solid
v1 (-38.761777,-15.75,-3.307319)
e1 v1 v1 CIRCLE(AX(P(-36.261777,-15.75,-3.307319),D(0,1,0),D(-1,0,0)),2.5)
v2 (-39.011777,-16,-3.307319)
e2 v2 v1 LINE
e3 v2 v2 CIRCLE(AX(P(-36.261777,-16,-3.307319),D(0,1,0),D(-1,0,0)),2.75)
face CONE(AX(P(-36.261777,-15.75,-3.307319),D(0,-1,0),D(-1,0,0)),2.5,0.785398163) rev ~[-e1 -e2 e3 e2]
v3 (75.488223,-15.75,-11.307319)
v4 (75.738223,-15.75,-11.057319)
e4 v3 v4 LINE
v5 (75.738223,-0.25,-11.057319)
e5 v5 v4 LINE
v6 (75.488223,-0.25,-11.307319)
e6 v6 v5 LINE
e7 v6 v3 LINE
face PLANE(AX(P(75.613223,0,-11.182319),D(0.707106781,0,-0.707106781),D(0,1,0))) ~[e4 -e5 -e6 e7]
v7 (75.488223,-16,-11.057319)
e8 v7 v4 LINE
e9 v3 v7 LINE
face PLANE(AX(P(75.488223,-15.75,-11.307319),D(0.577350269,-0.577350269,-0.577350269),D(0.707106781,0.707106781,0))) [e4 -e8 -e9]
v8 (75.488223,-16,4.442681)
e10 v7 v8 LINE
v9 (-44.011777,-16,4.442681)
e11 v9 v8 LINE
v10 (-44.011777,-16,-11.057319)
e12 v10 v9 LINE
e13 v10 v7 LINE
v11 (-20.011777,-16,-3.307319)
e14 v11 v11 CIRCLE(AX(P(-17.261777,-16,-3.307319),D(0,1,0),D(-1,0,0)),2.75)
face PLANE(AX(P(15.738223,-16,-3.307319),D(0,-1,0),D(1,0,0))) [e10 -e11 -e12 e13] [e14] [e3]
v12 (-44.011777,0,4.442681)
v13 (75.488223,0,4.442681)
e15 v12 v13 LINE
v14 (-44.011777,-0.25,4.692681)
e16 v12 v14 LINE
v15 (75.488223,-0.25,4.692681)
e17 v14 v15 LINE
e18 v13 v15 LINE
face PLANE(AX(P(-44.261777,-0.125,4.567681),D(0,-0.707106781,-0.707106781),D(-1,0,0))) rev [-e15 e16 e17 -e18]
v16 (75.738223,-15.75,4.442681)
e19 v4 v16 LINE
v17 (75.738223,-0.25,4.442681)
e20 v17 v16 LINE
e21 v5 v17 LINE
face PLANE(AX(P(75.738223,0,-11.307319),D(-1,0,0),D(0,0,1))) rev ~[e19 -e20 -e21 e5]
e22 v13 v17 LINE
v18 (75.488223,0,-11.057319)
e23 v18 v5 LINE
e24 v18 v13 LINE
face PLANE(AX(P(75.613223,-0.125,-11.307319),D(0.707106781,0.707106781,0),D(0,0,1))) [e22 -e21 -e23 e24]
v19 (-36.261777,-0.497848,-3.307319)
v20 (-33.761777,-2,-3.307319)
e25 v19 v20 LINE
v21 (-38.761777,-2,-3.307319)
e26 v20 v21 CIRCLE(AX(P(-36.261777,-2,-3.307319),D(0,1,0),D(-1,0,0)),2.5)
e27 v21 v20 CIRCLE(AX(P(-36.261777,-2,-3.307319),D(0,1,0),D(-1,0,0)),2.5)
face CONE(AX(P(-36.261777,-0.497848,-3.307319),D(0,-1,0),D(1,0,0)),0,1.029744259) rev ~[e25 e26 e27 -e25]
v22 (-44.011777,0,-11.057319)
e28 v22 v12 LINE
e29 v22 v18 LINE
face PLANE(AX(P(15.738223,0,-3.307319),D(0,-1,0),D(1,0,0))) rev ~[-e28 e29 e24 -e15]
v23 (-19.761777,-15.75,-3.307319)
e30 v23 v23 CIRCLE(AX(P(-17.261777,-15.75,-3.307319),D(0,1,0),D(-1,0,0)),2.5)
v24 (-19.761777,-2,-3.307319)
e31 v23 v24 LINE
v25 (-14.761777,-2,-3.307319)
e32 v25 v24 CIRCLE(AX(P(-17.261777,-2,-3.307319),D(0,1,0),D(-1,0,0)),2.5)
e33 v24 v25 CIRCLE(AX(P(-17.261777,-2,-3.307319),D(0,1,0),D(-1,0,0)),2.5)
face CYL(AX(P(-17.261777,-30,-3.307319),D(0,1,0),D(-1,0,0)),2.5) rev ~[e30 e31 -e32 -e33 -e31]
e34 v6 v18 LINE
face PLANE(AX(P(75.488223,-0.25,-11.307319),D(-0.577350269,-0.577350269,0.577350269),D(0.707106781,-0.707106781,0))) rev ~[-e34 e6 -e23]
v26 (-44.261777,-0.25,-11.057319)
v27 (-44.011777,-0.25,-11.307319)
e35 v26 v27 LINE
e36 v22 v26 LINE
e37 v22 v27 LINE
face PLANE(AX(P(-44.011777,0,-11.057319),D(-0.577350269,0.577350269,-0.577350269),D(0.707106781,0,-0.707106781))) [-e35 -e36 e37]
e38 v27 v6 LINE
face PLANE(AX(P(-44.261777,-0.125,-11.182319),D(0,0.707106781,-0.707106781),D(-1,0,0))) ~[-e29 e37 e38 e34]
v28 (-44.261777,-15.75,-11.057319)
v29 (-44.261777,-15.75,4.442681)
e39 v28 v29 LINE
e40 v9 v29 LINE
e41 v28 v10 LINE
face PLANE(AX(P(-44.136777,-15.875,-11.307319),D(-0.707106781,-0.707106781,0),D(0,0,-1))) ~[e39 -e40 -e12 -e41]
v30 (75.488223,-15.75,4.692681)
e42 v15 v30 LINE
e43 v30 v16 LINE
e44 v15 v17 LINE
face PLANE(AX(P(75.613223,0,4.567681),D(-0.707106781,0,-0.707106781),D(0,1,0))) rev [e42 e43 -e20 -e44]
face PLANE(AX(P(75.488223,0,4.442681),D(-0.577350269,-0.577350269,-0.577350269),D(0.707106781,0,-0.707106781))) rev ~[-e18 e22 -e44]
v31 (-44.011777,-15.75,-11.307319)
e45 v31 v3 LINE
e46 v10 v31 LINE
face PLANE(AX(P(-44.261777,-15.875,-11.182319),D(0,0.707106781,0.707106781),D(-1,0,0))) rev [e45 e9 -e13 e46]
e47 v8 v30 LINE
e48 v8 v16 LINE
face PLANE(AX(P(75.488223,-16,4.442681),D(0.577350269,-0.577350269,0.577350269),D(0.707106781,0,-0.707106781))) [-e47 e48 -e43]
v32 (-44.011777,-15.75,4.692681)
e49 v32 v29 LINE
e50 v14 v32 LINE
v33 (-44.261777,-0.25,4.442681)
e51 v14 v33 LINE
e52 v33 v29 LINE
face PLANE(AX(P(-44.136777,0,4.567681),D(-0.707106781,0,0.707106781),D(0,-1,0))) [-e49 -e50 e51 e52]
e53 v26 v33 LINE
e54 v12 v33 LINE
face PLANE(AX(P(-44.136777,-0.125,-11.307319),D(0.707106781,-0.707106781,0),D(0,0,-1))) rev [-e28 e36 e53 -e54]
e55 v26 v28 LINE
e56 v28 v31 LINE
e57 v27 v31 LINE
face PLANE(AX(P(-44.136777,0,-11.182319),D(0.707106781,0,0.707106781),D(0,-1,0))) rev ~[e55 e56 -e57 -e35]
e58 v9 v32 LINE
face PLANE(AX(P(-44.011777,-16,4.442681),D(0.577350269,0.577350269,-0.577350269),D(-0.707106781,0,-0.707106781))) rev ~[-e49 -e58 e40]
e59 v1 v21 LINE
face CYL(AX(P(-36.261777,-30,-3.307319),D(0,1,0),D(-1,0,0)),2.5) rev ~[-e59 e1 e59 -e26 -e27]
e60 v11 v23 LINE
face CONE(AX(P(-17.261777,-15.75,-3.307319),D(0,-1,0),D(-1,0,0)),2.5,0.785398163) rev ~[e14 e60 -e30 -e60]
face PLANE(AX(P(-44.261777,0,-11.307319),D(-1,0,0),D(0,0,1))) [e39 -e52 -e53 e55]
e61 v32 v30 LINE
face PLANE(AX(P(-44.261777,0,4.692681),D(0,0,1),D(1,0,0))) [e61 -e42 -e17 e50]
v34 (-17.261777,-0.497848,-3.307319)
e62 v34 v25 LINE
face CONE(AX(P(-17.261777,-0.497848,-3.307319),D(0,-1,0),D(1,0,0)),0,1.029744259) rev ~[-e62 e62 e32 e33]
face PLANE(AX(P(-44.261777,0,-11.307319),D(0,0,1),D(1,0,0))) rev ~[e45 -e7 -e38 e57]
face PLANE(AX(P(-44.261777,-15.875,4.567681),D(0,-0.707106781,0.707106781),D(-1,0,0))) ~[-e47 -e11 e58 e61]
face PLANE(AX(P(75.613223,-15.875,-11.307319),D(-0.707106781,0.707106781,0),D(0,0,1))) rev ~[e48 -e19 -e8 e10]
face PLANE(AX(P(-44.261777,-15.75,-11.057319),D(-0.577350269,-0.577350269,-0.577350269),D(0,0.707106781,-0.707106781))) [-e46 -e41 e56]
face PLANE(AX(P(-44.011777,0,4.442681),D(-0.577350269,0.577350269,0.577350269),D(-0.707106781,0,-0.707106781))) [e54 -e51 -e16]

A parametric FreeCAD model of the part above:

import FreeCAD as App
import Part
import Sketcher
Q = App.Units.Quantity


def edges_at(feature, points):
    """Names of the edges that pass closest to the given points."""
    edges = feature.Shape.Edges
    near = lambda p: min(range(len(edges)), key=lambda i: edges[i].distToShape(Part.Vertex(*p))[0])
    return sorted({f"Edge{near(p) + 1}" for p in points})


def add_polygon(sketch, points):
    """Adds a closed chain of lines whose ends are joined by coincident constraints."""
    first, n = sketch.GeometryCount, len(points)
    for a, b in zip(points, points[1:] + points[:1]):
        sketch.addGeometry(Part.LineSegment(App.Vector(*a, 0), App.Vector(*b, 0)), False)
    for i in range(n):
        sketch.addConstraint(Sketcher.Constraint("Coincident", first + i, 2, first + (i + 1) % n, 1))

doc = App.newDocument("Part")
body = doc.addObject("PartDesign::Body", "Body")

# Sketch on XZ plane
sketch1 = body.newObject("Sketcher::SketchObject", "Sketch")
sketch1.AttachmentSupport = (doc.getObject("XZ_Plane"), [""])
sketch1.MapMode = "FlatFace"
add_polygon(sketch1, [(-44, 5), (-44, -11), (76, -11), (76, 5)])  # lines 0-3
sketch1.addConstraint(Sketcher.Constraint("Vertical", 0))
sketch1.addConstraint(Sketcher.Constraint("Horizontal", 1))
sketch1.addConstraint(Sketcher.Constraint("Vertical", 2))
sketch1.addConstraint(Sketcher.Constraint("Horizontal", 3))
sketch1.addConstraint(Sketcher.Constraint("DistanceX", 1, 1, 1, 2, Q("120 mm")))
sketch1.addConstraint(Sketcher.Constraint("DistanceY", 0, 2, 0, 1, Q("16 mm")))
sketch1.addConstraint(Sketcher.Constraint("DistanceY", 0, 2, -1, 1, Q("11.307319 mm")))
sketch1.addConstraint(Sketcher.Constraint("DistanceX", 0, 2, -1, 1, Q("44.261777 mm")))
pad1 = body.newObject("PartDesign::Pad", "Pad")
pad1.Profile = sketch1
pad1.Length = 16

# Sketch on XZ plane
sketch2 = body.newObject("Sketcher::SketchObject", "Sketch001")
sketch2.AttachmentSupport = (doc.getObject("XZ_Plane"), [""])
sketch2.MapMode = "FlatFace"
sketch2.AttachmentOffset = App.Placement(App.Vector(0, 0, 16), App.Rotation())
sketch2.addGeometry(Part.Circle(App.Vector(-17.3, -3.3, 0), App.Vector(0, 0, 1), 2.5), False)
sketch2.addGeometry(Part.Circle(App.Vector(-36.3, -3.3, 0), App.Vector(0, 0, 1), 2.5), False)
sketch2.addConstraint(Sketcher.Constraint("Equal", 0, 1))
sketch2.addConstraint(Sketcher.Constraint("Horizontal", 0, 3, 1, 3))
sketch2.addConstraint(Sketcher.Constraint("Diameter", 0, Q("5 mm")))
sketch2.addConstraint(Sketcher.Constraint("DistanceX", 1, 3, 0, 3, Q("19 mm")))
sketch2.addConstraint(Sketcher.Constraint("DistanceY", 0, 3, -1, 1, Q("3.307319 mm")))
sketch2.addConstraint(Sketcher.Constraint("DistanceX", 0, 3, -1, 1, Q("17.261777 mm")))
doc.recompute()
hole = body.newObject("PartDesign::Hole", "Hole")
hole.Profile = sketch2
hole.ThreadType = "None"
hole.Diameter = 5
hole.DepthType = "Dimension"
hole.Depth = 14
hole.DrillPoint = "Angled"
hole.DrillPointAngle = 118
doc.recompute()

chamfer = body.newObject("PartDesign::Chamfer", "Chamfer")
chamfer.Base = (hole, edges_at(hole, [
    (75.738, -8, 4.693),
    (-44.262, -8, 4.693),
    (15.738, 0, 4.693),
    (15.738, -16, 4.693),
    (75.738, -16, -3.307),
    (15.738, -16, -11.307),
    (-44.262, -16, -3.307),
    (-33.762, -16, -3.307),
    (-14.762, -16, -3.307),
    (-44.262, -8, -11.307),
    (-44.262, 0, -3.307),
    (75.738, 0, -3.307),
    (15.738, 0, -11.307),
    (75.738, -8, -11.307),
]))
chamfer.Size = 0.25

doc.recompute()
